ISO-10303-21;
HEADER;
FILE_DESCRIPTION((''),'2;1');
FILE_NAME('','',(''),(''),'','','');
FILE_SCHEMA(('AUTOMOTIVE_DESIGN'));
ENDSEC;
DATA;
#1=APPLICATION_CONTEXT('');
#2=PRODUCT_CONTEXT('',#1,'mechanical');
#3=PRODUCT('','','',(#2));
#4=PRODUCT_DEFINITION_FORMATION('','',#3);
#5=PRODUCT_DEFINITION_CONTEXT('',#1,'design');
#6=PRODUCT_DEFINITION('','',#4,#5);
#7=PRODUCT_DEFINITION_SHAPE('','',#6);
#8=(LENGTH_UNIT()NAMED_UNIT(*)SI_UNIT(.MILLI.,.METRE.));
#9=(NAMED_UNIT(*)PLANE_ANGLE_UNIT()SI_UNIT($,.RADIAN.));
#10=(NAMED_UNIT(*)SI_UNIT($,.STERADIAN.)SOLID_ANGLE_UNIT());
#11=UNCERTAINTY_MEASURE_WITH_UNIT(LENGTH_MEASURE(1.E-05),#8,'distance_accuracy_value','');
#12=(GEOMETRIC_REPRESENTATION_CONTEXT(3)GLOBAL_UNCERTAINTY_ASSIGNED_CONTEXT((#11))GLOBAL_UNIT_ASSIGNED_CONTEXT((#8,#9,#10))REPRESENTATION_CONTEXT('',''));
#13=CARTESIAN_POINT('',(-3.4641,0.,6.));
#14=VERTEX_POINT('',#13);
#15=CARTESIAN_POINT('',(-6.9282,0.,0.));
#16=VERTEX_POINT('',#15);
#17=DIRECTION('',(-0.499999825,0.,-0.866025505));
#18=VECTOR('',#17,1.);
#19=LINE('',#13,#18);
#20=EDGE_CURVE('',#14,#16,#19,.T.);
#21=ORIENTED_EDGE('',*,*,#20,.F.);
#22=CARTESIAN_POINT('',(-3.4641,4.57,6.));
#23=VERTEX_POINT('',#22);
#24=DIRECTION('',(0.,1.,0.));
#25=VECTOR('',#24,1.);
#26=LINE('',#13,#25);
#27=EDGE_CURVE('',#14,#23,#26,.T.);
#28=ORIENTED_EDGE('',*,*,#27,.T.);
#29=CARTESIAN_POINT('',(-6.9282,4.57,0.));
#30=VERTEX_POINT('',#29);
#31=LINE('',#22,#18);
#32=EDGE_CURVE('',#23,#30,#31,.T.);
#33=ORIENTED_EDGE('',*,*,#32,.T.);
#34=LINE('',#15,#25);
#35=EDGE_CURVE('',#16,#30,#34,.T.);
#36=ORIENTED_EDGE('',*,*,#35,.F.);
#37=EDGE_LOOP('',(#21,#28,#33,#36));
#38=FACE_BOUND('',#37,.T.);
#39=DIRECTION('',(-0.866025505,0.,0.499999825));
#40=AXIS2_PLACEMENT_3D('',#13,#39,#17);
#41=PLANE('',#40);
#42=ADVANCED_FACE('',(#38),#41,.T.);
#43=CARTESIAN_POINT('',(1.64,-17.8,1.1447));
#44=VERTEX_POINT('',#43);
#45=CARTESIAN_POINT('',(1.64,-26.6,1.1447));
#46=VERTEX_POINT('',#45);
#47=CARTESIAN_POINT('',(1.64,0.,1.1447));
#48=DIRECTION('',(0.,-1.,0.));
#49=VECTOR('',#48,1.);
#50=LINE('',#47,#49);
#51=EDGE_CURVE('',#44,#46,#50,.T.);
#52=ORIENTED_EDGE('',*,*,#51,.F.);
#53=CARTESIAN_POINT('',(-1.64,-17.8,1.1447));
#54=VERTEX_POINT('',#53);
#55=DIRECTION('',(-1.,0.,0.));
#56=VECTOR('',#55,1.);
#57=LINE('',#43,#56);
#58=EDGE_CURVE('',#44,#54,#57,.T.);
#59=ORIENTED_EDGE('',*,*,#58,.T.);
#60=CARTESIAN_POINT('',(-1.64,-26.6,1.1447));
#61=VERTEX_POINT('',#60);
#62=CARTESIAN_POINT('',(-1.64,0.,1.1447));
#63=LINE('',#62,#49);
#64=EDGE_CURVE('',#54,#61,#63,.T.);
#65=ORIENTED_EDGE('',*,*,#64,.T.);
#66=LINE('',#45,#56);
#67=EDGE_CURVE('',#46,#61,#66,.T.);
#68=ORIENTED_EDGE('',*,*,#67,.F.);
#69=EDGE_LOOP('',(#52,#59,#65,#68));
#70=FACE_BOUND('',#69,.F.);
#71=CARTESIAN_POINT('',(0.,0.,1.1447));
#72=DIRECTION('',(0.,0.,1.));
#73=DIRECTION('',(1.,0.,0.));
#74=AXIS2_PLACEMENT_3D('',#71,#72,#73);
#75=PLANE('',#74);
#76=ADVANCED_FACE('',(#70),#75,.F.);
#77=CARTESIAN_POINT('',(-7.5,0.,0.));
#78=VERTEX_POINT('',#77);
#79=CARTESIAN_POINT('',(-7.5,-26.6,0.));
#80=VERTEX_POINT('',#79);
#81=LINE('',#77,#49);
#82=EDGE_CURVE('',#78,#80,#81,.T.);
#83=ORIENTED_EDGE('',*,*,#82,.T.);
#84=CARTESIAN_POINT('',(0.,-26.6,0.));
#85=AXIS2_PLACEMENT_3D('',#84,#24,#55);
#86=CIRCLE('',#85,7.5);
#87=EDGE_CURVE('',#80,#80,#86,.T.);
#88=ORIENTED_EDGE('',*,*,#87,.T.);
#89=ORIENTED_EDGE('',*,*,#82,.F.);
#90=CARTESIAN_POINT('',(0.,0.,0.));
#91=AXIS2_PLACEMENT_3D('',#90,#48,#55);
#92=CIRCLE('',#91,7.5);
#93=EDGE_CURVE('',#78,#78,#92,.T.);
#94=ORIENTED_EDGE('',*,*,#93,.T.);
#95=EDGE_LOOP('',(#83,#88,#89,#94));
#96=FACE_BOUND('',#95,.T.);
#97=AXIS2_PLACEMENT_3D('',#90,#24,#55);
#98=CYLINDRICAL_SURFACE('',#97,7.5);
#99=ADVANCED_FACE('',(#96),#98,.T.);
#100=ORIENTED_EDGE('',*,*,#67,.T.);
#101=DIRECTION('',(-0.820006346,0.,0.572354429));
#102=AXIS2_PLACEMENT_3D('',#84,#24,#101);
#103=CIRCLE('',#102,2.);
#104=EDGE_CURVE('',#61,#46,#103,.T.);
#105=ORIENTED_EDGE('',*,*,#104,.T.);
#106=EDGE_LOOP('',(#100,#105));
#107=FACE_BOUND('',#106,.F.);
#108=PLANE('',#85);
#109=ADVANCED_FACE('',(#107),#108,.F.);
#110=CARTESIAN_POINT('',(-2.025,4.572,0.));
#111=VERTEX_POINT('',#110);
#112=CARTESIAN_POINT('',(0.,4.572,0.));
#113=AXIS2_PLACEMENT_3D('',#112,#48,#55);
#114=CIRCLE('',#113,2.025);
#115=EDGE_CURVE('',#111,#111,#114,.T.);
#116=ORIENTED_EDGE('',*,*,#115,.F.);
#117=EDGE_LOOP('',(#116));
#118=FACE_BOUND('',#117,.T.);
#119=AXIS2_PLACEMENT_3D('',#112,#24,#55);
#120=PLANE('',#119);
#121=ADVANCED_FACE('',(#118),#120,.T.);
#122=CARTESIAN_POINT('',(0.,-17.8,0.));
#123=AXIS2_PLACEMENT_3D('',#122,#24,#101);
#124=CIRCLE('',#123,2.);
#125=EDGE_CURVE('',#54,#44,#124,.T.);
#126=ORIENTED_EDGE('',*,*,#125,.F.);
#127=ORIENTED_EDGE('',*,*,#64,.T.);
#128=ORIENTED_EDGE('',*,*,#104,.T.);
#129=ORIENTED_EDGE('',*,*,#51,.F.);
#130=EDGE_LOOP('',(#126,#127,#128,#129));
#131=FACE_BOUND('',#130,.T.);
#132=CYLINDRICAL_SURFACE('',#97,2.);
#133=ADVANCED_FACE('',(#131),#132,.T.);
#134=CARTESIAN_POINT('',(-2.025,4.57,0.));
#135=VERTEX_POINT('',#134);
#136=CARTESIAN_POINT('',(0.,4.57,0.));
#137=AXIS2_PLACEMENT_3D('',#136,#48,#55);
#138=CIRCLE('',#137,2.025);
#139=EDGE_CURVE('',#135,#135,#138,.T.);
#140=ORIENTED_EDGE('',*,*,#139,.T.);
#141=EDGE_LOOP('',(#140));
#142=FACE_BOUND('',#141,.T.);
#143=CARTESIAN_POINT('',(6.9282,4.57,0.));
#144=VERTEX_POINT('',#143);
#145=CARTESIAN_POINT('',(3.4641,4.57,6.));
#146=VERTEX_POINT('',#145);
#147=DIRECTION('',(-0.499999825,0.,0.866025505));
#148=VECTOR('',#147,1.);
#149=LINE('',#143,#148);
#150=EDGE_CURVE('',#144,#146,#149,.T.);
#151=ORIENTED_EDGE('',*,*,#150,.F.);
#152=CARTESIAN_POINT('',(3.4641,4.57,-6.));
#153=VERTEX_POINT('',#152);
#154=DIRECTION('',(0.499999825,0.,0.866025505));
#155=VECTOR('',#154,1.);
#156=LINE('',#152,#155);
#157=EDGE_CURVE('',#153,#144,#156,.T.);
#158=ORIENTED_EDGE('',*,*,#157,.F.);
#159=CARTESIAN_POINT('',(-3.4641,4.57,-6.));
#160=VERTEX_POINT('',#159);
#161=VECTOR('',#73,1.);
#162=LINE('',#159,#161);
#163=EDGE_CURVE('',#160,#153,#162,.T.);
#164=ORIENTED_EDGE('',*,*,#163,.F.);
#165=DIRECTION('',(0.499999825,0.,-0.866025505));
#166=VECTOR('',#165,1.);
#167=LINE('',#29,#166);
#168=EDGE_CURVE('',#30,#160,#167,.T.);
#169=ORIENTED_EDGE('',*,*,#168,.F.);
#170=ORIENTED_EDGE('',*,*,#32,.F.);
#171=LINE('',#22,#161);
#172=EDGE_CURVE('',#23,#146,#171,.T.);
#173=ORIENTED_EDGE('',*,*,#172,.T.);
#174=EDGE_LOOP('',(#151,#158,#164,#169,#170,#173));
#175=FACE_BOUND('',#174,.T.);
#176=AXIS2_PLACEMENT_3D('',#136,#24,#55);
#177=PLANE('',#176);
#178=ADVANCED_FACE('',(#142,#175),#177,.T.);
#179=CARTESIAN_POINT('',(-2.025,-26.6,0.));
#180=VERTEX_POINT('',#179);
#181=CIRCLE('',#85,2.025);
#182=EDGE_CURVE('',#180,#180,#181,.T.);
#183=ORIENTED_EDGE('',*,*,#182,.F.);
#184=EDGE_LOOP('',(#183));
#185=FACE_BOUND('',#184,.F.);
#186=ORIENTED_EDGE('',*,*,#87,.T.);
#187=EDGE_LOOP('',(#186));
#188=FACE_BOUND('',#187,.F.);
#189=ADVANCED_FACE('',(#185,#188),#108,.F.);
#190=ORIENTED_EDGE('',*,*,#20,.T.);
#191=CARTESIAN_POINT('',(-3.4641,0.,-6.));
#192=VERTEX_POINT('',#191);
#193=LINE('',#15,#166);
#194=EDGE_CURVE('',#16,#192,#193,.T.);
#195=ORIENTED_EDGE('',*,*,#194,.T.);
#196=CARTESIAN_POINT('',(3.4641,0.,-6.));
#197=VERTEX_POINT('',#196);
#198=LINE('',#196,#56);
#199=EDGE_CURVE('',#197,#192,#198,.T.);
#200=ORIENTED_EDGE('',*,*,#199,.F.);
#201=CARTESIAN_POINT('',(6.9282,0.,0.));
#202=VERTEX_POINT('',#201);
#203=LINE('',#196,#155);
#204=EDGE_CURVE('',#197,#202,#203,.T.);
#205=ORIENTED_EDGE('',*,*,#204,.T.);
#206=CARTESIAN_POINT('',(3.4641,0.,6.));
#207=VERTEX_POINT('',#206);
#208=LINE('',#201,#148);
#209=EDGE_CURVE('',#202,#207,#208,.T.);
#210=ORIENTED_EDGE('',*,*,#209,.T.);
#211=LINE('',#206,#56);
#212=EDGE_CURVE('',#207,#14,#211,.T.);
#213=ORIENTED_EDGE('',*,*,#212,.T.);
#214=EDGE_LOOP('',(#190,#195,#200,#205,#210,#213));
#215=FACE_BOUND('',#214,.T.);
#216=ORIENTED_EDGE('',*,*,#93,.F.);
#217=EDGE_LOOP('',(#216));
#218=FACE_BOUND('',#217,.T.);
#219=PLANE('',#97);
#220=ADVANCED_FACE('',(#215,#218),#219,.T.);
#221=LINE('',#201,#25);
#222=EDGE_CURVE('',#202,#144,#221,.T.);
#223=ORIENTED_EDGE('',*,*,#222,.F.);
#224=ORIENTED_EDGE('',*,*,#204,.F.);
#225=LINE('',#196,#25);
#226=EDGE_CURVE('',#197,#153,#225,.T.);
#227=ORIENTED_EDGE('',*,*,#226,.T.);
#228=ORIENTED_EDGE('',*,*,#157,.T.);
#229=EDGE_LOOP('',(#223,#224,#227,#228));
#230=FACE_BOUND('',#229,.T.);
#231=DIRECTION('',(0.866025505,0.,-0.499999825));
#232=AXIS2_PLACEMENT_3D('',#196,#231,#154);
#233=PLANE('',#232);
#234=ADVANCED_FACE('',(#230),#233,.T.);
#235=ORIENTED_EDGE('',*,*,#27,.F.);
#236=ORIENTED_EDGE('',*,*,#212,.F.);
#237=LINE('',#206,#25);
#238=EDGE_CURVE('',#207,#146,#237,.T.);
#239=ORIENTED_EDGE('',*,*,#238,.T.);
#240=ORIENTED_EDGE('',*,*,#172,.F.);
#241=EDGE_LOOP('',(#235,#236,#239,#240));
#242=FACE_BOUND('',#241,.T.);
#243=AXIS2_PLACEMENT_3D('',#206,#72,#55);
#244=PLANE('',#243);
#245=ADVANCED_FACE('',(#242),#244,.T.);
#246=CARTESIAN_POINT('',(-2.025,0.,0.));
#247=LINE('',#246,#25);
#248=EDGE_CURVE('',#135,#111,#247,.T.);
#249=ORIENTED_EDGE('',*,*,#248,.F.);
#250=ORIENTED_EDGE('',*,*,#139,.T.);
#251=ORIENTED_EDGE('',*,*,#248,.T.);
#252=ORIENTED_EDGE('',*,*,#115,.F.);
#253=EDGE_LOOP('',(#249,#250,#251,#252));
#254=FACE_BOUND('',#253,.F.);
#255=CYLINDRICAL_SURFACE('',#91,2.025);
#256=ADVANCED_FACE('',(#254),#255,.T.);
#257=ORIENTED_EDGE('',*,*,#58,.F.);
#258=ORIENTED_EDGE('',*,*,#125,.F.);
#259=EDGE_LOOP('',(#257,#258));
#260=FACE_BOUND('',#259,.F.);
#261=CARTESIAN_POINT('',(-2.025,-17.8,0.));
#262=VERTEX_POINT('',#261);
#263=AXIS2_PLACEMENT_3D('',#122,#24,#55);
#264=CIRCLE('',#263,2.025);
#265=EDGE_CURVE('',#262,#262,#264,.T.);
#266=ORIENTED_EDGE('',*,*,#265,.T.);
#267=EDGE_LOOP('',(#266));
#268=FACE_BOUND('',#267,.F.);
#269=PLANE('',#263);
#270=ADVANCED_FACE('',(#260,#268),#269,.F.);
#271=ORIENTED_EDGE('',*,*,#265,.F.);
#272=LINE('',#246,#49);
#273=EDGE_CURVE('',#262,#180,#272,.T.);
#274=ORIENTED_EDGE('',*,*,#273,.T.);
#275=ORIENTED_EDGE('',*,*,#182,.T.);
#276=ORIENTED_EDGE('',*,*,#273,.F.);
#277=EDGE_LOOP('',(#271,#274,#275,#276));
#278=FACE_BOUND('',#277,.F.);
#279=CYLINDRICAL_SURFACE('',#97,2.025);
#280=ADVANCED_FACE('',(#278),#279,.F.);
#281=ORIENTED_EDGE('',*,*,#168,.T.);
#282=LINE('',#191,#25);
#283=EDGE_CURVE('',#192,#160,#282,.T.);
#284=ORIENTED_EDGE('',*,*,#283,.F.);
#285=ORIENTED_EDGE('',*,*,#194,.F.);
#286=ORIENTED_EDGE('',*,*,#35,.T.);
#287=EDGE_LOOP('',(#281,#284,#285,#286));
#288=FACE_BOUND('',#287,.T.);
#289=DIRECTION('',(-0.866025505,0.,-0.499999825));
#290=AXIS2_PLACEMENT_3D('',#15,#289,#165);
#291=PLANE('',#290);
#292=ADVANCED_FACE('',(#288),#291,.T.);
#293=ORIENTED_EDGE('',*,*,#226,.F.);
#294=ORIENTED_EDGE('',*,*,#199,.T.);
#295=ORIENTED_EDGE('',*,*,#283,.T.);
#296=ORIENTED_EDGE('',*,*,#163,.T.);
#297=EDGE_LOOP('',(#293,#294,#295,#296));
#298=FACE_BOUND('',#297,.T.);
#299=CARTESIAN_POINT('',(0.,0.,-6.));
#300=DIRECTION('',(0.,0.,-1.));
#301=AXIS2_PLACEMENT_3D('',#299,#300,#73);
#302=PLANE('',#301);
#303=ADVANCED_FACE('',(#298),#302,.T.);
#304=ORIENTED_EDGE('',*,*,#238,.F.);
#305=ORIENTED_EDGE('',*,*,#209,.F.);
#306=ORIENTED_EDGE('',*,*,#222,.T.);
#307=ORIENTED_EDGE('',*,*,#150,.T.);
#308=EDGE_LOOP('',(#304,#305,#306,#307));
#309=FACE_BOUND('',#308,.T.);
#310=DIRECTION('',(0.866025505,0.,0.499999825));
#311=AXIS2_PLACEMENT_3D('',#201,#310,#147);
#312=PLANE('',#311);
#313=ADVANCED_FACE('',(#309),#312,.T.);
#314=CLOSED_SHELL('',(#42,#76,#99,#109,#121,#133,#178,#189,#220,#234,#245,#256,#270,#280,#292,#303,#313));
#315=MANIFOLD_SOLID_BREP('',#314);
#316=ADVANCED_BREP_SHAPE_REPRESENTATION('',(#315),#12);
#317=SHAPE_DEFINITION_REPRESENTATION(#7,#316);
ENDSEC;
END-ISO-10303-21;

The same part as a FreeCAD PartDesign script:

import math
import FreeCAD as App
import Part
import Sketcher
Q = App.Units.Quantity

doc = App.newDocument("Part")
params = doc.addObject("Spreadsheet::Sheet", "Params")
for row, (alias, value) in enumerate([
    ("sketch1_radius", "2 mm"),
    ("pad1_length", "4.57 mm"),
    ("sketch2_diameter", "4.05 mm"),
    ("pad2_length", "4.572 mm"),
    ("sketch3_diameter", "4.05 mm"),
    ("pad3_length", "17.8 mm"),
    ("sketch4_radius", "2 mm"),
    ("sketch4_width", "3.28 mm"),
    ("pad4_length", "26.6 mm"),
    ("sketch5_diameter", "15 mm"),
    ("sketch5_diameter2", "4.05 mm"),
    ("pad5_length", "26.6 mm"),
], start=1):
    params.set(f"A{row}", alias)
    params.set(f"B{row}", "=" + value)
    params.setAlias(f"B{row}", alias)

body = doc.addObject("PartDesign::Body", "Body")

# Sketch on XZ plane
sketch1 = doc.addObject("Sketcher::SketchObject", "Sketch")
body.addObject(sketch1)
sketch1.AttachmentSupport = (doc.XZ_Plane, [""])
sketch1.MapMode = "FlatFace"
sketch1.addGeometry([
    Part.LineSegment(App.Vector(6.928, 0, 0), App.Vector(3.464, -6, 0)),  # 0
    Part.LineSegment(App.Vector(3.464, -6, 0), App.Vector(-3.464, -6, 0)),  # 1
    Part.LineSegment(App.Vector(-3.464, -6, 0), App.Vector(-6.928, 0, 0)),  # 2
    Part.LineSegment(App.Vector(-6.928, 0, 0), App.Vector(-3.464, 6, 0)),  # 3
    Part.LineSegment(App.Vector(-3.464, 6, 0), App.Vector(3.464, 6, 0)),  # 4
    Part.LineSegment(App.Vector(3.464, 6, 0), App.Vector(6.928, 0, 0)),  # 5
    Part.ArcOfCircle(Part.Circle(App.Vector(0, 0, 0), App.Vector(0, 0, 1), 2.025), math.radians(0), math.radians(180)),  # 6
    Part.LineSegment(App.Vector(-2.025, 0, 0), App.Vector(-2, 0, 0)),  # 7
    Part.ArcOfCircle(Part.Circle(App.Vector(0, 0, 0), App.Vector(0, 0, 1), 2), math.radians(180), math.radians(360)),  # 8
    Part.LineSegment(App.Vector(2, 0, 0), App.Vector(2.025, 0, 0)),  # 9
], False)
sketch1.addConstraint([
    Sketcher.Constraint("Coincident", 0, 2, 1, 1),
    Sketcher.Constraint("Coincident", 1, 2, 2, 1),
    Sketcher.Constraint("Coincident", 2, 2, 3, 1),
    Sketcher.Constraint("Coincident", 3, 2, 4, 1),
    Sketcher.Constraint("Coincident", 4, 2, 5, 1),
    Sketcher.Constraint("Coincident", 5, 2, 0, 1),
    Sketcher.Constraint("Coincident", 6, 2, 7, 1),
    Sketcher.Constraint("Coincident", 7, 2, 8, 1),
    Sketcher.Constraint("Coincident", 8, 2, 9, 1),
    Sketcher.Constraint("Coincident", 9, 2, 6, 1),
    Sketcher.Constraint("Horizontal", 1),
    Sketcher.Constraint("Horizontal", 4),
    Sketcher.Constraint("Horizontal", 7),
    Sketcher.Constraint("Horizontal", 9),
    Sketcher.Constraint("Coincident", 6, 3, -1, 1),
    Sketcher.Constraint("Coincident", 8, 3, -1, 1),
    Sketcher.Constraint("Symmetric", 0, 2, 3, 2, -1, 1),
    Sketcher.Constraint("Symmetric", 2, 2, 5, 2, -1, 1),
    Sketcher.Constraint("PointOnObject", 2, 2, -1),
    Sketcher.Constraint("PointOnObject", 6, 2, -1),
    Sketcher.Constraint("PointOnObject", 8, 2, -1),
    Sketcher.Constraint("Parallel", 2, 5),
    Sketcher.Constraint("Vertical", 1, 2, 3, 2),
    Sketcher.Constraint("Radius", 8, 2.0),
    Sketcher.Constraint("Radius", 6, 2.025),
    Sketcher.Constraint("DistanceY", 1, 2, 3, 2, 12.0),
    Sketcher.Constraint("Angle", 0, Q("-120 deg")),
    Sketcher.Constraint("DistanceX", 1, 2, 1, 1, 6.9282),
])
sketch1.setExpression("Constraints[23]", "Params.sketch1_radius")
pad1 = doc.addObject("PartDesign::Pad", "Pad")
body.addObject(pad1)
pad1.Profile = sketch1
pad1.setExpression("Length", "Params.pad1_length")
pad1.Reversed = True

# Sketch on XZ plane
sketch2 = doc.addObject("Sketcher::SketchObject", "Sketch001")
body.addObject(sketch2)
sketch2.AttachmentSupport = (doc.XZ_Plane, [""])
sketch2.MapMode = "FlatFace"
sketch2.addGeometry(Part.Circle(App.Vector(0, 0, 0), App.Vector(0, 0, 1), 2), False)
sketch2.addConstraint([
    Sketcher.Constraint("Coincident", 0, 3, -1, 1),
    Sketcher.Constraint("Diameter", 0, 4.05),
])
sketch2.setExpression("Constraints[1]", "Params.sketch2_diameter")
pad2 = doc.addObject("PartDesign::Pad", "Pad001")
body.addObject(pad2)
pad2.Profile = sketch2
pad2.setExpression("Length", "Params.pad2_length")
pad2.Reversed = True

# Sketch on XZ plane
sketch3 = doc.addObject("Sketcher::SketchObject", "Sketch002")
body.addObject(sketch3)
sketch3.AttachmentSupport = (doc.XZ_Plane, [""])
sketch3.MapMode = "FlatFace"
sketch3.addGeometry(Part.Circle(App.Vector(0, 0, 0), App.Vector(0, 0, 1), 2), False)
sketch3.addConstraint([
    Sketcher.Constraint("Coincident", 0, 3, -1, 1),
    Sketcher.Constraint("Diameter", 0, 4.05),
])
sketch3.setExpression("Constraints[1]", "Params.sketch3_diameter")
pad3 = doc.addObject("PartDesign::Pad", "Pad002")
body.addObject(pad3)
pad3.Profile = sketch3
pad3.setExpression("Length", "Params.pad3_length")

# Sketch on XZ plane
sketch4 = doc.addObject("Sketcher::SketchObject", "Sketch003")
body.addObject(sketch4)
sketch4.AttachmentSupport = (doc.XZ_Plane, [""])
sketch4.MapMode = "FlatFace"
sketch4.addGeometry([
    Part.LineSegment(App.Vector(1.6, 1.1, 0), App.Vector(-1.6, 1.1, 0)),
    Part.ArcOfCircle(Part.Circle(App.Vector(0, 0, 0), App.Vector(0, 0, 1), 2), math.radians(35), math.radians(145)),
], False)
sketch4.addConstraint([
    Sketcher.Constraint("Coincident", 0, 1, 1, 1),
    Sketcher.Constraint("Coincident", 1, 2, 0, 2),
    Sketcher.Constraint("Horizontal", 0),
    Sketcher.Constraint("Coincident", 1, 3, -1, 1),
    Sketcher.Constraint("Radius", 1, 2.0),
    Sketcher.Constraint("DistanceX", 0, 2, 0, 1, 3.28),
])
sketch4.setExpression("Constraints[4]", "Params.sketch4_radius")
sketch4.setExpression("Constraints[5]", "Params.sketch4_width")
pad4 = doc.addObject("PartDesign::Pad", "Pad003")
body.addObject(pad4)
pad4.Profile = sketch4
pad4.setExpression("Length", "Params.pad4_length")

# Sketch on XZ plane
sketch5 = doc.addObject("Sketcher::SketchObject", "Sketch004")
body.addObject(sketch5)
sketch5.AttachmentSupport = (doc.XZ_Plane, [""])
sketch5.MapMode = "FlatFace"
sketch5.addGeometry([
    Part.Circle(App.Vector(0, 0, 0), App.Vector(0, 0, 1), 7.5),
    Part.Circle(App.Vector(0, 0, 0), App.Vector(0, 0, 1), 2),
], False)
sketch5.addConstraint([
    Sketcher.Constraint("Coincident", 0, 3, -1, 1),
    Sketcher.Constraint("Coincident", 1, 3, -1, 1),
    Sketcher.Constraint("Diameter", 0, 15.0),
    Sketcher.Constraint("Diameter", 1, 4.05),
])
sketch5.setExpression("Constraints[2]", "Params.sketch5_diameter")
sketch5.setExpression("Constraints[3]", "Params.sketch5_diameter2")
pad5 = doc.addObject("PartDesign::Pad", "Pad004")
body.addObject(pad5)
pad5.Profile = sketch5
pad5.setExpression("Length", "Params.pad5_length")

doc.recompute()
